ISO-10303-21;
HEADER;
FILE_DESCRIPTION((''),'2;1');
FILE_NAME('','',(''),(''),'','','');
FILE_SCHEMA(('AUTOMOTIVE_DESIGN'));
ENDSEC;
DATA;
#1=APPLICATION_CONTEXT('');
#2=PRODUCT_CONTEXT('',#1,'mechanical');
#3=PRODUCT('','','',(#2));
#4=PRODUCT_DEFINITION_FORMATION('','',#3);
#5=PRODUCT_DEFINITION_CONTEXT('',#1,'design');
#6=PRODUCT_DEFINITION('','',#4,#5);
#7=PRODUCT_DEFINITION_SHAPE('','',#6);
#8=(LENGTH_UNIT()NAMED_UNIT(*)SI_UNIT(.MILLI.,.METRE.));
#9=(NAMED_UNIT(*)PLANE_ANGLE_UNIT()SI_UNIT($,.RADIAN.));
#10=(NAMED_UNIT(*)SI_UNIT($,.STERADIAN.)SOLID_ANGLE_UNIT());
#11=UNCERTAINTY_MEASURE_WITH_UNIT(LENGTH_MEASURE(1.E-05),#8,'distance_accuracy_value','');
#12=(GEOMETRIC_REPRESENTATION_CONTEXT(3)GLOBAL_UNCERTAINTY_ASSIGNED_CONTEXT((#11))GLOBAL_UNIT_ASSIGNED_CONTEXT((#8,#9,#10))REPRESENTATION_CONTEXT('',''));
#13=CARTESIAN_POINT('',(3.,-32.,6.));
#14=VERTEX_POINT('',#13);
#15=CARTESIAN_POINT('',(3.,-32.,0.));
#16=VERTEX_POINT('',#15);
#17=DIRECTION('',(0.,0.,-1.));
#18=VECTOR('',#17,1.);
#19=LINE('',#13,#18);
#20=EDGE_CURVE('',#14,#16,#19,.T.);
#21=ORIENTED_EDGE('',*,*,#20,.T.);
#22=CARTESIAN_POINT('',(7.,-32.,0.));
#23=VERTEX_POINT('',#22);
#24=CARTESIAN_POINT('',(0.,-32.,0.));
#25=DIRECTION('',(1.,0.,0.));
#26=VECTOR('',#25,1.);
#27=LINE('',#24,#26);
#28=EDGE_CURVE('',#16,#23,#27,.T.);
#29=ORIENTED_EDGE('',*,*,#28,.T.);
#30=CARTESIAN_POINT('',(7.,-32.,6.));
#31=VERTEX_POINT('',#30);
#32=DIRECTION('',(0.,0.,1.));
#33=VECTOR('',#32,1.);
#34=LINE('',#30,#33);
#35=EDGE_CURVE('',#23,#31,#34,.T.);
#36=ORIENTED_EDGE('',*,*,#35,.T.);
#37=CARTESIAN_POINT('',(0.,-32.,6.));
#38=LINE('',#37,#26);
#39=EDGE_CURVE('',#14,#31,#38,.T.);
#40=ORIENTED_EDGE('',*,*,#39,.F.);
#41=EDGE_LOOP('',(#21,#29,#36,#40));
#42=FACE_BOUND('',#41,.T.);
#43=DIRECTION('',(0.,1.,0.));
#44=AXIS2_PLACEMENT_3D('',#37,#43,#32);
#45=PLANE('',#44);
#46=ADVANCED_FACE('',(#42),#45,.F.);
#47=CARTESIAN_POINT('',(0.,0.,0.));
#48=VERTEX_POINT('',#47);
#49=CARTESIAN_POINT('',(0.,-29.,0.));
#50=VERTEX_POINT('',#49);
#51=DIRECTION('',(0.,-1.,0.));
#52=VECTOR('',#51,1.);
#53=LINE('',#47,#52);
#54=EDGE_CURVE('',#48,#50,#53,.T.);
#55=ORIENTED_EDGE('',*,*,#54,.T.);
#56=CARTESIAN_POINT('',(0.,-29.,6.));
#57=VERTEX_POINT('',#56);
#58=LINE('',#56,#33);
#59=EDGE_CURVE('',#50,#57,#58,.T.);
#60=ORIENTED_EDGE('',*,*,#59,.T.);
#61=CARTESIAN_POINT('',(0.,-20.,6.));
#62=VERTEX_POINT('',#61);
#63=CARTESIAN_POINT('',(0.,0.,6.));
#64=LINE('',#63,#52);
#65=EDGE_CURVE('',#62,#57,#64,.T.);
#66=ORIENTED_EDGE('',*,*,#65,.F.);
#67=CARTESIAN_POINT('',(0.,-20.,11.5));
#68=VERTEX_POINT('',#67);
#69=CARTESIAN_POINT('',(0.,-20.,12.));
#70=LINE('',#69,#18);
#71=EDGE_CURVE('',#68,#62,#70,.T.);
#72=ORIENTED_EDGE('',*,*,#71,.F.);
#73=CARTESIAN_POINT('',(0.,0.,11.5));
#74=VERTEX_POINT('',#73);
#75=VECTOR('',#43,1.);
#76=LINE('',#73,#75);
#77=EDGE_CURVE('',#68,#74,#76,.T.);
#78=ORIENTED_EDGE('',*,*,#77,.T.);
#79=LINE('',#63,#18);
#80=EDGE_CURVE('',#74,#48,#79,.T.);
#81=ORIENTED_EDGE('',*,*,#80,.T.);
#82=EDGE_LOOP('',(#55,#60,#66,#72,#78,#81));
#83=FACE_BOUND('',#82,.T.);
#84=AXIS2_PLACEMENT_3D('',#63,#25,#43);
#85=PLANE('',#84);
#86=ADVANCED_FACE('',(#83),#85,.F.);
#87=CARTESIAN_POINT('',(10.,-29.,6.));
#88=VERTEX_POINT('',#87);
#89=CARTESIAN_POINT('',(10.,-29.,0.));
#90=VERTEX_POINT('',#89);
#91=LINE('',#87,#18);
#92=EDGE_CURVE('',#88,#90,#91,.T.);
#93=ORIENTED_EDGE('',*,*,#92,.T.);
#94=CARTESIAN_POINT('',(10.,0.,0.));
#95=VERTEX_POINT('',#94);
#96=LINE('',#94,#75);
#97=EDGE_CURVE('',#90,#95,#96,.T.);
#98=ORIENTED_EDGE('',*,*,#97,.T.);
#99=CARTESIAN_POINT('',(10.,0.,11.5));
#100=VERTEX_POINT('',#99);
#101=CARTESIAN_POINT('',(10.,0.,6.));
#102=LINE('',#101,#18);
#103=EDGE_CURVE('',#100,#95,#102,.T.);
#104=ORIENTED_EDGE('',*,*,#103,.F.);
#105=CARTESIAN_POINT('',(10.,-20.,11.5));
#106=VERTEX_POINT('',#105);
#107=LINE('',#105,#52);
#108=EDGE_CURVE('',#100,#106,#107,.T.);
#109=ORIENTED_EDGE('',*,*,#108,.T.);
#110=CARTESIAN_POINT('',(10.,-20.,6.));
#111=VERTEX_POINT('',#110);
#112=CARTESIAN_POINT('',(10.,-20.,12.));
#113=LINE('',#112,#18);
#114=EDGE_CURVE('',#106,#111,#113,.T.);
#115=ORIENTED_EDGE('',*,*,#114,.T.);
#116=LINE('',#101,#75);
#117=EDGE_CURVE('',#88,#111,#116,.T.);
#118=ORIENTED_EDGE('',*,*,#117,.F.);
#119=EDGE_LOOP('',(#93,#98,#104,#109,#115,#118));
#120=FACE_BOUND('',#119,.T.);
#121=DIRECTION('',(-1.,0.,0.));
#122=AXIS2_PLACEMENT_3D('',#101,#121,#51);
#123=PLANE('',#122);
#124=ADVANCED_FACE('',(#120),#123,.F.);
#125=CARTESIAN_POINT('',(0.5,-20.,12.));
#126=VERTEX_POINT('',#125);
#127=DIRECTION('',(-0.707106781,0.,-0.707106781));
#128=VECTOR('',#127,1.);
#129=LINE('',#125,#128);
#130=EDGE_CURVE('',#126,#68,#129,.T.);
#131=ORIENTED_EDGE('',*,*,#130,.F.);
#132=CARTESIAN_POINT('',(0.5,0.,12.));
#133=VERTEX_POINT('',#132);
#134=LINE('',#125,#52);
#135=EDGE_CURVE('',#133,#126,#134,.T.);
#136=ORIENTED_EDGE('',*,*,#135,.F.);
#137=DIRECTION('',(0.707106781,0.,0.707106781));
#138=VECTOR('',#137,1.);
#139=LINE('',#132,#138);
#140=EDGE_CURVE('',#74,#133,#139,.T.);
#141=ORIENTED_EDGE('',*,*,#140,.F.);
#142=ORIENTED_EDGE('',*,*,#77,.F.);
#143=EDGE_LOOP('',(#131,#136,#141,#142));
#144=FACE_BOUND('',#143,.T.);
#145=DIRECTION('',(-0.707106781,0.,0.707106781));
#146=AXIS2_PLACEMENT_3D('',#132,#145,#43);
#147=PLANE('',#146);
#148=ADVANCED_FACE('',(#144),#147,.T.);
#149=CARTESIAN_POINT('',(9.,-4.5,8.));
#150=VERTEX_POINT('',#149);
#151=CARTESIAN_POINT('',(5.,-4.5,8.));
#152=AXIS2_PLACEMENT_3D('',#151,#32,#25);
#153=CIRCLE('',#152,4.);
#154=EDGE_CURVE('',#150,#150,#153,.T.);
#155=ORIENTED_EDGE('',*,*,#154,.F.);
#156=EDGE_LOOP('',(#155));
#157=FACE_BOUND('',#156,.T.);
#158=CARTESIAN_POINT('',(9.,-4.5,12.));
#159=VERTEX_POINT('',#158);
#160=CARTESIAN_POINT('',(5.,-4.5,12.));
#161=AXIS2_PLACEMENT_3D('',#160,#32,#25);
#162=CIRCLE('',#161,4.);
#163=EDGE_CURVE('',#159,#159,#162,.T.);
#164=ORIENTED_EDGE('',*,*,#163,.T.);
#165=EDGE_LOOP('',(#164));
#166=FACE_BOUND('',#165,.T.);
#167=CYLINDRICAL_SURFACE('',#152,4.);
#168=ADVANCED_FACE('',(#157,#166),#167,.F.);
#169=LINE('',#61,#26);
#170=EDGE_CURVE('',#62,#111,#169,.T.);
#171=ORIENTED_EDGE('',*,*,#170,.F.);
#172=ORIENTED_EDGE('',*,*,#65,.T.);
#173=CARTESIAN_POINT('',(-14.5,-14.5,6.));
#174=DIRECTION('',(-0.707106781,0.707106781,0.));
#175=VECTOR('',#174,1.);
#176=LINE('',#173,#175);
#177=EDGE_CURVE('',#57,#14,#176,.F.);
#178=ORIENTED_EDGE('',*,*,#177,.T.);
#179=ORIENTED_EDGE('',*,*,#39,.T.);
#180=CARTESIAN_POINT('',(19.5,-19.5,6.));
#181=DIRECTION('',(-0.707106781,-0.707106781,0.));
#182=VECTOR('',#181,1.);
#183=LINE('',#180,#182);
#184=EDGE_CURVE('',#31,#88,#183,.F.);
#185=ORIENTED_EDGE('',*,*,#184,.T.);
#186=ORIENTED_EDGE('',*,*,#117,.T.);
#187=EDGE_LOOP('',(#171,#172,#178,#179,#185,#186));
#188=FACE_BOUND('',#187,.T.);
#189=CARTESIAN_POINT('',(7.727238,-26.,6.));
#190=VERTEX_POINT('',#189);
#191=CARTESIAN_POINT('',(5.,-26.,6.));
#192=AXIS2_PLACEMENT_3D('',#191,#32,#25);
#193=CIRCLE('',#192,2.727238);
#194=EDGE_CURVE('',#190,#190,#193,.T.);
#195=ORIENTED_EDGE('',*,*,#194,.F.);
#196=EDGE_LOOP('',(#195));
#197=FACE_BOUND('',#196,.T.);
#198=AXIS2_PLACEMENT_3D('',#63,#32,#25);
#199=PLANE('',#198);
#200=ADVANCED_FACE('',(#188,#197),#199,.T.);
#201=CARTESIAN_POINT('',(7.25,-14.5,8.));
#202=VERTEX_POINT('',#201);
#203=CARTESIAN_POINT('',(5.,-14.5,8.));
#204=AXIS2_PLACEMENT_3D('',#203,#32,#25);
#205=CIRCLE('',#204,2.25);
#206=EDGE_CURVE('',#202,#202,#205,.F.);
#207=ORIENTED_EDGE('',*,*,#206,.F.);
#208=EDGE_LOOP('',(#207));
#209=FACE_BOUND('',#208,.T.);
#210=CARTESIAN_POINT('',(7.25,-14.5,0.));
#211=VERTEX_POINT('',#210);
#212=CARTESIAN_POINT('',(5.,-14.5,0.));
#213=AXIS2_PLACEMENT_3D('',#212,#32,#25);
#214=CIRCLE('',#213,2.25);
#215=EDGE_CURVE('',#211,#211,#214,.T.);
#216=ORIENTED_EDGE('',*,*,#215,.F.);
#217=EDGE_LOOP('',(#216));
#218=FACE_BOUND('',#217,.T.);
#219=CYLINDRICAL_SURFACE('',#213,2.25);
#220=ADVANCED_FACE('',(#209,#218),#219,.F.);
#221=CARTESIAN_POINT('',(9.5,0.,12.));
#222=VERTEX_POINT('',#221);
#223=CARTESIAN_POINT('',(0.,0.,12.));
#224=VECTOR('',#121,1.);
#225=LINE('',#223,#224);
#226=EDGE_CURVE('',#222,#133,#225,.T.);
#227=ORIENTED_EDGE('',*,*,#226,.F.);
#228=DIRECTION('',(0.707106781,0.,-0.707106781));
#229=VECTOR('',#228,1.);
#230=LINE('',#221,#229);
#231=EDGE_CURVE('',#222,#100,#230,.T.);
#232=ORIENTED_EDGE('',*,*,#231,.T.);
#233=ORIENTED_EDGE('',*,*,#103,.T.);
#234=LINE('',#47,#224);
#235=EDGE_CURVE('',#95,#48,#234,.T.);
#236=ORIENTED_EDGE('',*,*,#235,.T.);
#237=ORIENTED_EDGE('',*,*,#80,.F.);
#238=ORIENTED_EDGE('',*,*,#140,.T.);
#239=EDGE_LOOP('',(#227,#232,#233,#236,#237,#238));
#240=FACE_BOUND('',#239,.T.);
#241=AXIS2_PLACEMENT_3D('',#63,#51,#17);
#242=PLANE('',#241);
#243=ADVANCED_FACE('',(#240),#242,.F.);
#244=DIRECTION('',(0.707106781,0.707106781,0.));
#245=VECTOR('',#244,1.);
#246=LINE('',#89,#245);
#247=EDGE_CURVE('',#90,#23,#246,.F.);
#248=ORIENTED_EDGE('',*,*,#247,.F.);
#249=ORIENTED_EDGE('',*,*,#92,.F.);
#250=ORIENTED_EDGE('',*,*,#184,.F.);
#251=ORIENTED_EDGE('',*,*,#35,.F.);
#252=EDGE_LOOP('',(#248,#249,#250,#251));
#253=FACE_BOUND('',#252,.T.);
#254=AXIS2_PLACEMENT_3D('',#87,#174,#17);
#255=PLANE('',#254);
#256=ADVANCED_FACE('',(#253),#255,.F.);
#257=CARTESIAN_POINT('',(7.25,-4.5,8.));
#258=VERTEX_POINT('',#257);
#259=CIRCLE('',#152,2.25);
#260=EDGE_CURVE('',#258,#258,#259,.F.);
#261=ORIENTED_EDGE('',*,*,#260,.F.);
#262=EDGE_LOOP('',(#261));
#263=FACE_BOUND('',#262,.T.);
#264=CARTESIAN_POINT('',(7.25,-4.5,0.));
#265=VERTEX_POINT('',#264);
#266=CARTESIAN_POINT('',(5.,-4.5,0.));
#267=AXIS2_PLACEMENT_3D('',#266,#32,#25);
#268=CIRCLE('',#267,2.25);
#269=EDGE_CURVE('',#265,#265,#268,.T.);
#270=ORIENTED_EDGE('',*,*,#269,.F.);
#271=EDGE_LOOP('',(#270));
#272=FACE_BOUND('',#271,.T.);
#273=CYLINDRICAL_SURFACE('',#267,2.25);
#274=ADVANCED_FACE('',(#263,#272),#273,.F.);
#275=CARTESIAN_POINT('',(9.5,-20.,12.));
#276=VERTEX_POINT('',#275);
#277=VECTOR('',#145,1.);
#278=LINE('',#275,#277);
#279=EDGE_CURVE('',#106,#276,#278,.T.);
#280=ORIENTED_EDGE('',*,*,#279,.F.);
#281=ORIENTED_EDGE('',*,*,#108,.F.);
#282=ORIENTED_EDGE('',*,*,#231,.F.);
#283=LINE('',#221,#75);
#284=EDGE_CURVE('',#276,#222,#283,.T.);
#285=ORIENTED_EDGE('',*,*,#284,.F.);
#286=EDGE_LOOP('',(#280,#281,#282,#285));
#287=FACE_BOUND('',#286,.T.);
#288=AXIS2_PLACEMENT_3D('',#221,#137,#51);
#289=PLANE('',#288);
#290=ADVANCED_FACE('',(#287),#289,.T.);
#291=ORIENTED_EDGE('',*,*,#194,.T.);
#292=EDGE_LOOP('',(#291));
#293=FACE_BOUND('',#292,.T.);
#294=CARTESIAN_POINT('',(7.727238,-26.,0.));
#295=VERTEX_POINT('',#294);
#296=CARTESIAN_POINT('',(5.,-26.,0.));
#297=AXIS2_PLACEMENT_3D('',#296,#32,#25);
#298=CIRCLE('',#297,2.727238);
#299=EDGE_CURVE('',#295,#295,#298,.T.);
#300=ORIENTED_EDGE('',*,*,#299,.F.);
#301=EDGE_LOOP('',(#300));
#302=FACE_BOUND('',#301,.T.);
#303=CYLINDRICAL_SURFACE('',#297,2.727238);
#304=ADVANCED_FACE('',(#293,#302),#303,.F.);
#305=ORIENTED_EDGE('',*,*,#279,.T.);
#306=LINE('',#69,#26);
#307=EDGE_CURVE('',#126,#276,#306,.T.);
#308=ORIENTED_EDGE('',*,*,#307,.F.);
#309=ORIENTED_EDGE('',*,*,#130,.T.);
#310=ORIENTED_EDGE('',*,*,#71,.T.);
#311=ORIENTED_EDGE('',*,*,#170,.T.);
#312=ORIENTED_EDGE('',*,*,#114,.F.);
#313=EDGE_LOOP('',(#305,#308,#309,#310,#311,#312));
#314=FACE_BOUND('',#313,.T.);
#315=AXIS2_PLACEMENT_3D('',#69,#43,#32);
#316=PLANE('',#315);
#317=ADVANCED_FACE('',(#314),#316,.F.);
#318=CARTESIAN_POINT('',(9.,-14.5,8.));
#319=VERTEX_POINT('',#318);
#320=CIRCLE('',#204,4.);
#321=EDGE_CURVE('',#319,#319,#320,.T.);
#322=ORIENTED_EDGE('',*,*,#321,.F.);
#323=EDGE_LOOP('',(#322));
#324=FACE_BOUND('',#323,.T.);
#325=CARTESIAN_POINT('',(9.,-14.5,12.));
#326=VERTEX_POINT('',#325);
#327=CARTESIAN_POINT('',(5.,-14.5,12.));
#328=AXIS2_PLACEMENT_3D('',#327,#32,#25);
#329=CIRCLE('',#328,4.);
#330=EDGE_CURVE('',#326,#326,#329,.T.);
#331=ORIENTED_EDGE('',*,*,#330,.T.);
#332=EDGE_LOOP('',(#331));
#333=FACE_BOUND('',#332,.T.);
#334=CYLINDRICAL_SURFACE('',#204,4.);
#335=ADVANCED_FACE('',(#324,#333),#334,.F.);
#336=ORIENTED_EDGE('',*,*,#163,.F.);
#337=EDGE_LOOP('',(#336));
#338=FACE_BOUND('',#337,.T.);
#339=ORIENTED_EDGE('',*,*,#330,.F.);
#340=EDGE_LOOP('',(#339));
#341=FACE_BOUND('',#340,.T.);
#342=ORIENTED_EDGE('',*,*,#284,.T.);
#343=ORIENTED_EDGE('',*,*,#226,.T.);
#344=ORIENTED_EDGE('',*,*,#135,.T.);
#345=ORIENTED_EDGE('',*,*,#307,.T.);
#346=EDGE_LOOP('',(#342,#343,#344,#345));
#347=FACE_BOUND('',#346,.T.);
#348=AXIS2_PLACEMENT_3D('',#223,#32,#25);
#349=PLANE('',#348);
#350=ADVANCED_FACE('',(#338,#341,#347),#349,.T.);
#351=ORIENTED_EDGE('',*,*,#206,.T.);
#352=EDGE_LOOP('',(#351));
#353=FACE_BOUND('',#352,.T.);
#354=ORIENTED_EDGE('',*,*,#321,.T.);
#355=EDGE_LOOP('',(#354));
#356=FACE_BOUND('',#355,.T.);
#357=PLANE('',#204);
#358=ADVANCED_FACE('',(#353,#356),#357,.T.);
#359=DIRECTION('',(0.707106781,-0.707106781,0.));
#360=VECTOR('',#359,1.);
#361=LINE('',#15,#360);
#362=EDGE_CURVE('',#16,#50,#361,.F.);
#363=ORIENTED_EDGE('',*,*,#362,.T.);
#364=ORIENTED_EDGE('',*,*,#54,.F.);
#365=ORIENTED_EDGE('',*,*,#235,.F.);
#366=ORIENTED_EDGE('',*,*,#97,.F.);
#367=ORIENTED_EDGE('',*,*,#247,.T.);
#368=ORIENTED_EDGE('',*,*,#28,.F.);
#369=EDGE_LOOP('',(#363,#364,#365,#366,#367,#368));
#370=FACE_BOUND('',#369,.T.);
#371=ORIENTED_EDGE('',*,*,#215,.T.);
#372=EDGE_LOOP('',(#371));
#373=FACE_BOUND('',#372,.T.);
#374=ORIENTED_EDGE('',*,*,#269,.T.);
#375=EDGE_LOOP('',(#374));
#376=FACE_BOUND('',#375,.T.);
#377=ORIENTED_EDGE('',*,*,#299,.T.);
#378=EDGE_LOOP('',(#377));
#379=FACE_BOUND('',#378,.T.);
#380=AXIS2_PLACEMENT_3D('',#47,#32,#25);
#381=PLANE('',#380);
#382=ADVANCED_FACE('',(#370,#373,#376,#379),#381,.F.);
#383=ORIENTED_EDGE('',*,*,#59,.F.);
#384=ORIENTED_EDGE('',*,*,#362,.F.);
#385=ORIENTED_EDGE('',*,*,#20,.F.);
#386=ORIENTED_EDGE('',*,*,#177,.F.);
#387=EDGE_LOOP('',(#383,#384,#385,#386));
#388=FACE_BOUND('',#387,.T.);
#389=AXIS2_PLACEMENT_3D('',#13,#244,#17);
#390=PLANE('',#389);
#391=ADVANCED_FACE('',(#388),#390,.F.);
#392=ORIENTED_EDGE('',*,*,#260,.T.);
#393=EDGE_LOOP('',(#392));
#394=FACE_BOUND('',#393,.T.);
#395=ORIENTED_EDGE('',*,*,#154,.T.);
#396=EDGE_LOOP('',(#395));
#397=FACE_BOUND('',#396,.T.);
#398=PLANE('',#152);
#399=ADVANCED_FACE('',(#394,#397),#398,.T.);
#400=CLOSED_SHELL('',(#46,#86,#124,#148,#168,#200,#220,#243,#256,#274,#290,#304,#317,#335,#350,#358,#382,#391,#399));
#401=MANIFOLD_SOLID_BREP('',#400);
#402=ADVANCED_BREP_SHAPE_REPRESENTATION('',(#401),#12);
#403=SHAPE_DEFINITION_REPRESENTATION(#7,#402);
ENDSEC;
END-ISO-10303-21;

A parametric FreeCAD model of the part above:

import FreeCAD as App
import Part
import Sketcher

V = App.Vector
Q = App.Units.Quantity


def edges_at(feature, points):
    """Names of the edges that pass closest to the given points."""
    edges = feature.Shape.Edges
    near = lambda p: min(range(len(edges)), key=lambda i: edges[i].distToShape(Part.Vertex(*p))[0])
    return sorted({f"Edge{near(p) + 1}" for p in points})


def add_polygon(sketch, points):
    """Adds a closed chain of lines whose ends are joined by coincident constraints."""
    first, n = sketch.GeometryCount, len(points)
    for a, b in zip(points, points[1:] + points[:1]):
        sketch.addGeometry(Part.LineSegment(App.Vector(*a, 0), App.Vector(*b, 0)), False)
    for i in range(n):
        sketch.addConstraint(Sketcher.Constraint("Coincident", first + i, 2, first + (i + 1) % n, 1))

doc = App.newDocument("Part")
body = doc.addObject("PartDesign::Body", "Body")

sketch1 = doc.addObject("Sketcher::SketchObject", "Sketch")
body.addObject(sketch1)
sketch1.AttachmentSupport = (doc.XY_Plane, [""])
sketch1.MapMode = "FlatFace"
add_polygon(sketch1, [(0, 0), (0, -32), (10, -32), (10, 0)])
sketch1.addConstraint([
    Sketcher.Constraint("Vertical", 0),
    Sketcher.Constraint("Horizontal", 1),
    Sketcher.Constraint("Vertical", 2),
    Sketcher.Constraint("Horizontal", 3),
    Sketcher.Constraint("Coincident", 3, 2, -1, 1),
    Sketcher.Constraint("DistanceX", 1, 1, 1, 2, Q("10 mm")),
    Sketcher.Constraint("DistanceY", 0, 2, 0, 1, Q("32 mm")),
])
pad1 = doc.addObject("PartDesign::Pad", "Pad")
body.addObject(pad1)
pad1.Profile = sketch1
pad1.Length = 6

sketch2 = doc.addObject("Sketcher::SketchObject", "Sketch001")
body.addObject(sketch2)
sketch2.AttachmentSupport = (doc.XY_Plane, [""])
sketch2.MapMode = "FlatFace"
sketch2.AttachmentOffset = App.Placement(V(0, 0, 6), App.Rotation())
add_polygon(sketch2, [(0, 0), (0, -20), (10, -20), (10, 0)])
sketch2.addConstraint([
    Sketcher.Constraint("Vertical", 0),
    Sketcher.Constraint("Horizontal", 1),
    Sketcher.Constraint("Vertical", 2),
    Sketcher.Constraint("Horizontal", 3),
    Sketcher.Constraint("Coincident", 3, 2, -1, 1),
    Sketcher.Constraint("DistanceX", 1, 1, 1, 2, Q("10 mm")),
    Sketcher.Constraint("DistanceY", 0, 2, 0, 1, Q("20 mm")),
])
pad2 = doc.addObject("PartDesign::Pad", "Pad001")
body.addObject(pad2)
pad2.Profile = sketch2
pad2.Length = 6

sketch3 = doc.addObject("Sketcher::SketchObject", "Sketch002")
body.addObject(sketch3)
sketch3.AttachmentSupport = (doc.XY_Plane, [""])
sketch3.MapMode = "FlatFace"
sketch3.AttachmentOffset = App.Placement(V(0, 0, 12), App.Rotation())
sketch3.addGeometry([
    Part.Circle(V(5, -4.5, 0), V(0, 0, 1), 2.2),
    Part.Circle(V(5, -14.5, 0), V(0, 0, 1), 2.2),
], False)
sketch3.addConstraint([
    Sketcher.Constraint("Equal", 0, 1),
    Sketcher.Constraint("Vertical", 0, 3, 1, 3),
    Sketcher.Constraint("Diameter", 0, Q("4.5 mm")),
    Sketcher.Constraint("DistanceX", -1, 1, 0, 3, Q("5 mm")),
    Sketcher.Constraint("DistanceY", 1, 3, 0, 3, Q("10 mm")),
    Sketcher.Constraint("DistanceY", 0, 3, -1, 1, Q("4.5 mm")),
])
pocket1 = doc.addObject("PartDesign::Pocket", "Pocket")
body.addObject(pocket1)
pocket1.Profile = sketch3
pocket1.Type = "ThroughAll"

sketch4 = doc.addObject("Sketcher::SketchObject", "Sketch003")
body.addObject(sketch4)
sketch4.AttachmentSupport = (doc.XY_Plane, [""])
sketch4.MapMode = "FlatFace"
sketch4.AttachmentOffset = App.Placement(V(0, 0, 12), App.Rotation())
sketch4.addGeometry([
    Part.Circle(V(5, -4.5, 0), V(0, 0, 1), 4),
    Part.Circle(V(5, -14.5, 0), V(0, 0, 1), 4),
], False)
sketch4.addConstraint([
    Sketcher.Constraint("Equal", 0, 1),
    Sketcher.Constraint("Vertical", 0, 3, 1, 3),
    Sketcher.Constraint("Diameter", 0, Q("8 mm")),
    Sketcher.Constraint("DistanceX", -1, 1, 0, 3, Q("5 mm")),
    Sketcher.Constraint("DistanceY", 1, 3, 0, 3, Q("10 mm")),
    Sketcher.Constraint("DistanceY", 0, 3, -1, 1, Q("4.5 mm")),
])
pocket2 = doc.addObject("PartDesign::Pocket", "Pocket001")
body.addObject(pocket2)
pocket2.Profile = sketch4
pocket2.Length = 4
doc.recompute()

chamfer = doc.addObject("PartDesign::Chamfer", "Chamfer")
body.addObject(chamfer)
chamfer.Base = (pocket2, edges_at(pocket2, [(10, -32, 3), (0, -32, 3)]))
chamfer.Size = 3
doc.recompute()

chamfer2 = doc.addObject("PartDesign::Chamfer", "Chamfer001")
body.addObject(chamfer2)
chamfer2.Base = (chamfer, edges_at(chamfer, [(0, -10, 12), (10, -10, 12)]))
chamfer2.Size = 0.5

sketch5 = doc.addObject("Sketcher::SketchObject", "Sketch004")
body.addObject(sketch5)
sketch5.AttachmentSupport = (doc.XY_Plane, [""])
sketch5.MapMode = "FlatFace"
sketch5.AttachmentOffset = App.Placement(V(0, 0, 6), App.Rotation())
sketch5.addGeometry(Part.Circle(V(5, -26, 0), V(0, 0, 1), 2.7), False)
sketch5.addConstraint([
    Sketcher.Constraint("DistanceX", -1, 1, 0, 3, Q("5 mm")),
    Sketcher.Constraint("DistanceY", 0, 3, -1, 1, Q("26 mm")),
    Sketcher.Constraint("Diameter", 0, Q("5.454477 mm")),
])
pocket3 = doc.addObject("PartDesign::Pocket", "Pocket002")
body.addObject(pocket3)
pocket3.Profile = sketch5
pocket3.Type = "ThroughAll"

doc.recompute()
